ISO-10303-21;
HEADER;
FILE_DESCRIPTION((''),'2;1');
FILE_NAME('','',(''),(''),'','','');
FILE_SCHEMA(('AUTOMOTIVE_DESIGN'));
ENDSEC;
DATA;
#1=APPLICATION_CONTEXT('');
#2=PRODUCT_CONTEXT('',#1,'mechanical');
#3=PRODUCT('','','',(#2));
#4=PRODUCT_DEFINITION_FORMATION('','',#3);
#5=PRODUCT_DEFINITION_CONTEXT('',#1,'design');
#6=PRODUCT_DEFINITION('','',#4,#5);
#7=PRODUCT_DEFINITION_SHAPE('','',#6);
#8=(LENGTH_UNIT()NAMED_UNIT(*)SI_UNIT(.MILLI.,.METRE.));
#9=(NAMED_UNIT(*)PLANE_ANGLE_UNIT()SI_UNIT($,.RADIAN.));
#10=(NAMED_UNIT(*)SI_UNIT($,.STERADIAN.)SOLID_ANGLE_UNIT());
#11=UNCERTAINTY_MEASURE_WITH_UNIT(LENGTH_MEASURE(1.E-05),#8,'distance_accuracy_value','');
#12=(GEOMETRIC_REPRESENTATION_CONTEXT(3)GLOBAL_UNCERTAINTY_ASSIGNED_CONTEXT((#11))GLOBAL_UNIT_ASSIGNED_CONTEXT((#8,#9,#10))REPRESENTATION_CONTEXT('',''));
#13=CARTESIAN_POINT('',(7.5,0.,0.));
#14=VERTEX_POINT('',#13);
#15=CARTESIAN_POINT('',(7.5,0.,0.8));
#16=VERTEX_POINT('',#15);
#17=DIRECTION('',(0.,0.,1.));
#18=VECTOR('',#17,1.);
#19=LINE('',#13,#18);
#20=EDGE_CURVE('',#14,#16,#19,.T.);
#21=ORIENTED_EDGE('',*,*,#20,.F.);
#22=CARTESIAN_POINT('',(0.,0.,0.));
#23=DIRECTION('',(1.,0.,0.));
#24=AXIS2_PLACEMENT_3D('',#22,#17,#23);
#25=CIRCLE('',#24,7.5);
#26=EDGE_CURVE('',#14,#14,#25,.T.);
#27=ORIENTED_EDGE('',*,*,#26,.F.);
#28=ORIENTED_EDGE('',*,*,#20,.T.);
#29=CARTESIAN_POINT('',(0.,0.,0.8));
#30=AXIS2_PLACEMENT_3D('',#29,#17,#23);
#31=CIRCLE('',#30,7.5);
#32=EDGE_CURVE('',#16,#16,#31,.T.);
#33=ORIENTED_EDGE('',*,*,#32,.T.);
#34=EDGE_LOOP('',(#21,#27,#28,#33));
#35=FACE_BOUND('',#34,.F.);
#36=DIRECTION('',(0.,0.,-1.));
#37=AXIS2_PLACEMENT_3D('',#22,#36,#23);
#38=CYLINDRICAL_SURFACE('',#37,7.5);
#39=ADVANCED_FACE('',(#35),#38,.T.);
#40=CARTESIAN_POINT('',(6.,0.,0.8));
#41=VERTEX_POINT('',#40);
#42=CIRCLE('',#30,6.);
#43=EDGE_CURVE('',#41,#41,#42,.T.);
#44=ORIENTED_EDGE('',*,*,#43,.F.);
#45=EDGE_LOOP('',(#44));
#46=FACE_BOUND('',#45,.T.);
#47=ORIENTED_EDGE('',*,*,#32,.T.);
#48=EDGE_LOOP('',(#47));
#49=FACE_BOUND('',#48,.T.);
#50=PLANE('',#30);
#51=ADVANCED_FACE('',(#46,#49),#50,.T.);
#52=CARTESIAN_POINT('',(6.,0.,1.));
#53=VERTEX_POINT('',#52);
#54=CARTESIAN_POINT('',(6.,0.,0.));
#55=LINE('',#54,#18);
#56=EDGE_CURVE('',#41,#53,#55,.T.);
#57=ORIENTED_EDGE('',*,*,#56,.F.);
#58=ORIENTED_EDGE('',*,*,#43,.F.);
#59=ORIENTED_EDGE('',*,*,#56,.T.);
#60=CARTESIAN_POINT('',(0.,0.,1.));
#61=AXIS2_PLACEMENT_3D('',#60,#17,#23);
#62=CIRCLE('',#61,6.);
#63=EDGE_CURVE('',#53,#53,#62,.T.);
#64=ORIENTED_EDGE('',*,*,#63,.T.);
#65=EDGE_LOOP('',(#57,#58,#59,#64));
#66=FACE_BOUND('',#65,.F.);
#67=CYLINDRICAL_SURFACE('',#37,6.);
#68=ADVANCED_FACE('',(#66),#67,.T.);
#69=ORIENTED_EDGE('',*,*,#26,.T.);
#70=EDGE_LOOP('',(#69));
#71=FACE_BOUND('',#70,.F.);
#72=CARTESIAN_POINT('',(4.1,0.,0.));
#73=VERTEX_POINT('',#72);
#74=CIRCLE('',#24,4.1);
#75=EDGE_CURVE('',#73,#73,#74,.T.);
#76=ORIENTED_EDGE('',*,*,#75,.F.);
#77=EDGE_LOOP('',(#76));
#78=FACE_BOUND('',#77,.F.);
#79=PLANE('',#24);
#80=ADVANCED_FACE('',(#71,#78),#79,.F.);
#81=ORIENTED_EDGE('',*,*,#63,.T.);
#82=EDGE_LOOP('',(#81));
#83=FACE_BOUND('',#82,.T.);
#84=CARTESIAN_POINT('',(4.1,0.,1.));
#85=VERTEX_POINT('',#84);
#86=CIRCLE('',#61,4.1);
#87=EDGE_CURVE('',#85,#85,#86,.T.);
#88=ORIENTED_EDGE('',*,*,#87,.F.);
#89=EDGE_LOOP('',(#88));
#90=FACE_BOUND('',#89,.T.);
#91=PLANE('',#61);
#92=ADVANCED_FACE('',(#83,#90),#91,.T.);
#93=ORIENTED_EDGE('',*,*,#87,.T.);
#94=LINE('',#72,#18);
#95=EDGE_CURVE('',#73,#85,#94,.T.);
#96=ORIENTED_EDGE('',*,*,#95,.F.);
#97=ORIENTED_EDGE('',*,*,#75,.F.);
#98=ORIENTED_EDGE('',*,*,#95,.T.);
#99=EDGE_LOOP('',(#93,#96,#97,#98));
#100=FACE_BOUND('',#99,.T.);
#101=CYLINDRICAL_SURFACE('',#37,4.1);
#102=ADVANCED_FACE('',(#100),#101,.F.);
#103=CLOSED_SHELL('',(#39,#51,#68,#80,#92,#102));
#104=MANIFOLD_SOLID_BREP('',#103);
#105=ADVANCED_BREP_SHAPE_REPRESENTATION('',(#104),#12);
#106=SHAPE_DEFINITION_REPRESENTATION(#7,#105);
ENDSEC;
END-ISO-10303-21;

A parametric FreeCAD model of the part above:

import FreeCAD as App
import Part
import Sketcher
Q = App.Units.Quantity

doc = App.newDocument("Part")
body = doc.addObject("PartDesign::Body", "Body")

# Sketch on XY plane
sketch1 = body.newObject("Sketcher::SketchObject", "Sketch")
sketch1.AttachmentSupport = (doc.getObject("XY_Plane"), [""])
sketch1.MapMode = "FlatFace"
sketch1.addGeometry([
    Part.Circle(App.Vector(0, 0, 0), App.Vector(0, 0, 1), 6),
    Part.Circle(App.Vector(0, 0, 0), App.Vector(0, 0, 1), 4.1),
], False)
sketch1.addConstraint([
    Sketcher.Constraint("Coincident", 0, 3, -1, 1),
    Sketcher.Constraint("Coincident", 1, 3, -1, 1),
    Sketcher.Constraint("Diameter", 0, Q("12 mm")),
    Sketcher.Constraint("Diameter", 1, Q("8.2 mm")),
])
pad1 = body.newObject("PartDesign::Pad", "Pad")
pad1.Profile = sketch1
pad1.Length = 1

# Sketch on XY plane
sketch2 = body.newObject("Sketcher::SketchObject", "Sketch001")
sketch2.AttachmentSupport = (doc.getObject("XY_Plane"), [""])
sketch2.MapMode = "FlatFace"
sketch2.addGeometry([
    Part.Circle(App.Vector(0, 0, 0), App.Vector(0, 0, 1), 7.5),
    Part.Circle(App.Vector(0, 0, 0), App.Vector(0, 0, 1), 6),
], False)
sketch2.addConstraint([
    Sketcher.Constraint("Coincident", 0, 3, -1, 1),
    Sketcher.Constraint("Coincident", 1, 3, -1, 1),
    Sketcher.Constraint("Diameter", 0, Q("15 mm")),
    Sketcher.Constraint("Diameter", 1, Q("12 mm")),
])
pad2 = body.newObject("PartDesign::Pad", "Pad001")
pad2.Profile = sketch2
pad2.Length = 0.8

doc.recompute()
